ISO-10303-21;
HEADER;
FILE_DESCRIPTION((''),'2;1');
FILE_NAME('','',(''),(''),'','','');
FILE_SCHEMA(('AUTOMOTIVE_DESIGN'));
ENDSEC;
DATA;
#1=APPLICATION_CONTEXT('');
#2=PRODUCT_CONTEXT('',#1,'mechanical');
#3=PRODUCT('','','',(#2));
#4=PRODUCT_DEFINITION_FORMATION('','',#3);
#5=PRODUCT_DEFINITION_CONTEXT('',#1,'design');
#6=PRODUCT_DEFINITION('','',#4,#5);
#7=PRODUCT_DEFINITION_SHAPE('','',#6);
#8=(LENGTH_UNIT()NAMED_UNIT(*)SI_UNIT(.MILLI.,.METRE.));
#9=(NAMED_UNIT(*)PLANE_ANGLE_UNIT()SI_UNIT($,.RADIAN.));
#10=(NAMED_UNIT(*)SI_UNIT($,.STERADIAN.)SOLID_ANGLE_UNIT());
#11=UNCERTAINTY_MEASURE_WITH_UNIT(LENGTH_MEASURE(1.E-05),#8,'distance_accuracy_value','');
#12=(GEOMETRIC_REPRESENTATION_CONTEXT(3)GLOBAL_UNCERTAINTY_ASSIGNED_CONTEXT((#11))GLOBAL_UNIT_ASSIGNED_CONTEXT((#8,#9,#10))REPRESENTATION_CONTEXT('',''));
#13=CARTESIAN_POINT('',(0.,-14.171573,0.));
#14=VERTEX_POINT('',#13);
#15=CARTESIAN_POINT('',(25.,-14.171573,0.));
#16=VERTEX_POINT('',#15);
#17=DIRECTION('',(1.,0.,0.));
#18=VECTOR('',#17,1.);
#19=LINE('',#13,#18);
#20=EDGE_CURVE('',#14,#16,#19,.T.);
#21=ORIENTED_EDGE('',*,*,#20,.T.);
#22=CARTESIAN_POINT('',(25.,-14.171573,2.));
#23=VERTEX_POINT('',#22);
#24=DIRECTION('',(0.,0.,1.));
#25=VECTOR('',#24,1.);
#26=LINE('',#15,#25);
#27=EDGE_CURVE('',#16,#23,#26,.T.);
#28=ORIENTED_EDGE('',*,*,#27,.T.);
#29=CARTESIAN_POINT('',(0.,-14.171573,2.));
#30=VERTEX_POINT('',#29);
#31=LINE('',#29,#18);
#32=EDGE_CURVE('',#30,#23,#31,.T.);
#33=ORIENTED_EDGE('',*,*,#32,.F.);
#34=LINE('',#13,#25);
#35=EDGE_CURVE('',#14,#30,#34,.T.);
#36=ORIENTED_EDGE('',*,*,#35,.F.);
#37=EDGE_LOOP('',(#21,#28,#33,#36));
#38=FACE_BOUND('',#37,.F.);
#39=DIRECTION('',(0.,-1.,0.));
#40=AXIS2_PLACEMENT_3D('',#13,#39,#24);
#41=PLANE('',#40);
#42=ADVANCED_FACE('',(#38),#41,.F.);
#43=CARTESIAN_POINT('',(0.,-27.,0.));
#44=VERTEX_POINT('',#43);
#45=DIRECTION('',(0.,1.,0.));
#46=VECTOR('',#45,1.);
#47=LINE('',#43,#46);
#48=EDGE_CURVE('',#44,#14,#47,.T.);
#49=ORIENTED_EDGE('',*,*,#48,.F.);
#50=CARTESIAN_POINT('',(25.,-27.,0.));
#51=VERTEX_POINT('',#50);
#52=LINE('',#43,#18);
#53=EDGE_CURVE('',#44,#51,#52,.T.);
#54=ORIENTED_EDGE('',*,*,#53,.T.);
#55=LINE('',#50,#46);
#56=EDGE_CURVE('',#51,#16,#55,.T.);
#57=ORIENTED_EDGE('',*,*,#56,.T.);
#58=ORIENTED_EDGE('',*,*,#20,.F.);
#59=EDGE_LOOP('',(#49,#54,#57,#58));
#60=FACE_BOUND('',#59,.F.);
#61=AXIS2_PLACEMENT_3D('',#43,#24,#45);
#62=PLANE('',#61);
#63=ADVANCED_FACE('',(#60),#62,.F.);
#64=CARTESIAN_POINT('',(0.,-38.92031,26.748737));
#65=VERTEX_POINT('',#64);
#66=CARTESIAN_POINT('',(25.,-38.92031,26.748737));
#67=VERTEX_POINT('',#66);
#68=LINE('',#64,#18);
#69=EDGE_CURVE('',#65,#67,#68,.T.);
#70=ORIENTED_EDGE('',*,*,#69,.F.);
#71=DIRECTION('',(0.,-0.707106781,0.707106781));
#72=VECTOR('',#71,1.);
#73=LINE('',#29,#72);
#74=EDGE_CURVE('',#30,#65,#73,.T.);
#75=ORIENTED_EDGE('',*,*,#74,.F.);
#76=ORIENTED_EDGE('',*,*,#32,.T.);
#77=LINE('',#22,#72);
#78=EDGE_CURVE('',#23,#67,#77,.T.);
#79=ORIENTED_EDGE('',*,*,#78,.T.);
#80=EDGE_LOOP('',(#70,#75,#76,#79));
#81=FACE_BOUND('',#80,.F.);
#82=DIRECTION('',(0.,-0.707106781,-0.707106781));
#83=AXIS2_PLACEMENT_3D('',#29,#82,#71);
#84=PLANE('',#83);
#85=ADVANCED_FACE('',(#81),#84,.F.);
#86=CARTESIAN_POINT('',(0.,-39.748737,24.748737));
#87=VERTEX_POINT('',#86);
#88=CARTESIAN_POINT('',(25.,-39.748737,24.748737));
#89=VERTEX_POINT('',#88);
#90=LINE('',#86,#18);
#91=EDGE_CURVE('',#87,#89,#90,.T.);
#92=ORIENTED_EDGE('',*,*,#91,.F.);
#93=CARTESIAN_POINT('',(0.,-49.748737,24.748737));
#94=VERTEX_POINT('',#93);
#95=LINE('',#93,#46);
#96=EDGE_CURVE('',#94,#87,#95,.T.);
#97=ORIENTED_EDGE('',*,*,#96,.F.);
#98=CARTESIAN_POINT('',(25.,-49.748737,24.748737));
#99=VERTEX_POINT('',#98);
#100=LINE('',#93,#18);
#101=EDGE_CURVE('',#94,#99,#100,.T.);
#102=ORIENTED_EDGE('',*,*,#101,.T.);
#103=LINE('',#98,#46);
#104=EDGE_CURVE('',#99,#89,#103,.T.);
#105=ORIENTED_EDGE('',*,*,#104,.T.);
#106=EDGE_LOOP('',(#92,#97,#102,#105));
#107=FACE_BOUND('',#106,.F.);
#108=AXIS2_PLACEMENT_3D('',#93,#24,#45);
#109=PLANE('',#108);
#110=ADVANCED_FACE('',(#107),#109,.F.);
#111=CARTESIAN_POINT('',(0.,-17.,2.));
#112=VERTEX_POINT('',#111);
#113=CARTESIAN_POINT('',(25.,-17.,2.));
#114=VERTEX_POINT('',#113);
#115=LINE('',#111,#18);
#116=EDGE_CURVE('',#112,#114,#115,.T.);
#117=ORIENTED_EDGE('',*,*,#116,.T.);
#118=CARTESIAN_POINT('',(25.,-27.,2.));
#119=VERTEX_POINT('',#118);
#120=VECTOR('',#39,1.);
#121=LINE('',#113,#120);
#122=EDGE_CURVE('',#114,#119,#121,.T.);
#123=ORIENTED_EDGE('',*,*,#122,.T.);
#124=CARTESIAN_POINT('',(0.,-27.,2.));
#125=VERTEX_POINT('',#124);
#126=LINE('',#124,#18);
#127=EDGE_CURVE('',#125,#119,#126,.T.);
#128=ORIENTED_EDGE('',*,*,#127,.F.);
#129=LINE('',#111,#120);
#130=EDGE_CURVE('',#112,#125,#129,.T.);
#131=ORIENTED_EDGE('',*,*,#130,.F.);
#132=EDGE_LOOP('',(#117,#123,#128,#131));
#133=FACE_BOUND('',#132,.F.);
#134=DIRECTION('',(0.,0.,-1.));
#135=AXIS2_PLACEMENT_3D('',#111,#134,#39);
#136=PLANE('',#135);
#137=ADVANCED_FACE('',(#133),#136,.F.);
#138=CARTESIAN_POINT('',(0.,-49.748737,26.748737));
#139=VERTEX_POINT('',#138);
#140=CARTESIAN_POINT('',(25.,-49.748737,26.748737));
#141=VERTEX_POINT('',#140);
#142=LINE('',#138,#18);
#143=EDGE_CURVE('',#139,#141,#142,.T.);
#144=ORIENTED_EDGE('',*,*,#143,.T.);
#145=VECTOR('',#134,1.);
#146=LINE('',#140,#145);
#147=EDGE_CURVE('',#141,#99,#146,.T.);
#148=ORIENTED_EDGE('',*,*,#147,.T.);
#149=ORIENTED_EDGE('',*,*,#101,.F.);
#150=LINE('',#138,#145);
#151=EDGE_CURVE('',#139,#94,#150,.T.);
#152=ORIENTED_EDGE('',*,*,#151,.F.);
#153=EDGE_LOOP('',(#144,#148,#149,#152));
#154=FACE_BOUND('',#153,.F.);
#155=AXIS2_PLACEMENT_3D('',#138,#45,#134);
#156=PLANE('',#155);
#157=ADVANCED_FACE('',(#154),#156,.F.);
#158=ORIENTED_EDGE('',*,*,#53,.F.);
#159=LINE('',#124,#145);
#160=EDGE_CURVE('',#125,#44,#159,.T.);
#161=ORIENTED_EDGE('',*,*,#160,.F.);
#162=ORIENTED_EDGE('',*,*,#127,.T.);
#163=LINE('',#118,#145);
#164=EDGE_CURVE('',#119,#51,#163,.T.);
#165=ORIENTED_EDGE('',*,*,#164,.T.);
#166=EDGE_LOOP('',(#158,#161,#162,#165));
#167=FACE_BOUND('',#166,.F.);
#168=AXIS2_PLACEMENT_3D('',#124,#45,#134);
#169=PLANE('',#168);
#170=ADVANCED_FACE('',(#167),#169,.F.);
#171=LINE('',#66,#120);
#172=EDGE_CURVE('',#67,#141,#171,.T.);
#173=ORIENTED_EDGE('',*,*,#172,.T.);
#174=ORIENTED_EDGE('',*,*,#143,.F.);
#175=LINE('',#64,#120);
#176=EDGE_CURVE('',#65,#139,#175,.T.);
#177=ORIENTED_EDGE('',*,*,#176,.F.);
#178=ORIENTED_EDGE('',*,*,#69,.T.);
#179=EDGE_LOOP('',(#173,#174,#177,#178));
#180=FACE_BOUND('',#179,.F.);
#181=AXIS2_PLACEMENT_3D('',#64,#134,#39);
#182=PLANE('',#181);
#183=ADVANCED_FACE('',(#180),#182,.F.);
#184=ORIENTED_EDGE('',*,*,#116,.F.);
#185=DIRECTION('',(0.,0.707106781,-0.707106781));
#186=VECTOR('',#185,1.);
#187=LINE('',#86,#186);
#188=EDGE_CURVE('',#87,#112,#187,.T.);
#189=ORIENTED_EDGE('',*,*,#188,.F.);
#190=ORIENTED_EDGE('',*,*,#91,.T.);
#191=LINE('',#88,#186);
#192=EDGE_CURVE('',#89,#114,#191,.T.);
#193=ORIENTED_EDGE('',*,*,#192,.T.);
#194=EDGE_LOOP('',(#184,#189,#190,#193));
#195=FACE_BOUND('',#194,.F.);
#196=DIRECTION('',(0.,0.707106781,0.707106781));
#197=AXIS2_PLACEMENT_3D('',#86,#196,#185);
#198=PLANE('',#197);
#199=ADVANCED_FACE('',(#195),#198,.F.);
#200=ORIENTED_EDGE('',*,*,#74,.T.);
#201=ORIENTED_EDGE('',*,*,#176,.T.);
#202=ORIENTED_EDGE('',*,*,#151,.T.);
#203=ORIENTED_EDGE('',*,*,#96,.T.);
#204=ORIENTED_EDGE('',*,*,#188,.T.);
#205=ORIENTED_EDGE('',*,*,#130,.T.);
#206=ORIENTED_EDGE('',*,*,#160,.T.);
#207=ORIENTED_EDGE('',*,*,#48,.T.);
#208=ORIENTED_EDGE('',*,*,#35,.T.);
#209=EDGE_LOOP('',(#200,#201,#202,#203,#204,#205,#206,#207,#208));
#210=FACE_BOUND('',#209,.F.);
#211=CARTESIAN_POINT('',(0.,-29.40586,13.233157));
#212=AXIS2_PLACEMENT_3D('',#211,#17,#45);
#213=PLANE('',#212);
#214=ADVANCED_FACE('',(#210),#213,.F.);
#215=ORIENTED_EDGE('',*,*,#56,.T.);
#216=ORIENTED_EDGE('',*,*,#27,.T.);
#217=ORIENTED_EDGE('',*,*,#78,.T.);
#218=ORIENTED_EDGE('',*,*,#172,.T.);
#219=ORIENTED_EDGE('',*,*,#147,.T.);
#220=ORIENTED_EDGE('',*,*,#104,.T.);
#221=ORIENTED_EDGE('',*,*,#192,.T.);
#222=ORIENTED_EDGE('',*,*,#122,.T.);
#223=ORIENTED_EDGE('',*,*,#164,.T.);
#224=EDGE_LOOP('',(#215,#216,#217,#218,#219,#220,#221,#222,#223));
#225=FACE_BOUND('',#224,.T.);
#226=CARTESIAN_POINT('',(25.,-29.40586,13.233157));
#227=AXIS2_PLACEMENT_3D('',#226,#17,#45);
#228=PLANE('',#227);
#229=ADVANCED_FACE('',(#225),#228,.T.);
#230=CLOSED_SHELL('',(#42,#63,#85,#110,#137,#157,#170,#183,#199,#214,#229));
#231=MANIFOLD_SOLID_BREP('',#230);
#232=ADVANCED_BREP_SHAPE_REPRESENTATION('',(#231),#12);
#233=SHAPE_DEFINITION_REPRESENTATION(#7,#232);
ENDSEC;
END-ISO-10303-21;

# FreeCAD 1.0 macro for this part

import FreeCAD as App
import Part
import Sketcher
Q = App.Units.Quantity


def add_polygon(sketch, points):
    """Adds a closed chain of lines whose ends are joined by coincident constraints."""
    first, n = sketch.GeometryCount, len(points)
    for a, b in zip(points, points[1:] + points[:1]):
        sketch.addGeometry(Part.LineSegment(App.Vector(*a, 0), App.Vector(*b, 0)), False)
    for i in range(n):
        sketch.addConstraint(Sketcher.Constraint("Coincident", first + i, 2, first + (i + 1) % n, 1))

doc = App.newDocument("Part")
params = doc.addObject("Spreadsheet::Sheet", "Params")
for row, (alias, value) in enumerate([
    ("sketch1_width", "10 mm"),
    ("sketch1_height", "2 mm"),
    ("sketch1_length", "35 mm"),
    ("pad1_length", "25 mm"),
], start=1):
    params.set(f"A{row}", alias)
    params.set(f"B{row}", "=" + value)
    params.setAlias(f"B{row}", alias)

body = doc.addObject("PartDesign::Body", "Body")

# Sketch on YZ plane
sketch1 = doc.addObject("Sketcher::SketchObject", "Sketch")
body.addObject(sketch1)
sketch1.AttachmentSupport = (doc.YZ_Plane, [""])
sketch1.MapMode = "FlatFace"
add_polygon(sketch1, [(-49.7, 24.7), (-39.7, 24.7), (-17, 2), (-27, 2), (-27, 0), (-14.2, 0), (-14.2, 2), (-38.9, 26.7), (-49.7, 26.7)])  # lines 0-8
sketch1.addConstraint([
    Sketcher.Constraint("Horizontal", 0),
    Sketcher.Constraint("Horizontal", 2),
    Sketcher.Constraint("Vertical", 3),
    Sketcher.Constraint("Horizontal", 4),
    Sketcher.Constraint("Vertical", 5),
    Sketcher.Constraint("Horizontal", 7),
    Sketcher.Constraint("Vertical", 8),
    Sketcher.Constraint("PointOnObject", 3, 2, -1),
    Sketcher.Constraint("Parallel", 1, 6),
    Sketcher.Constraint("Horizontal", 2, 2, 5, 2),
    Sketcher.Constraint("Equal", 0, 2),
    Sketcher.Constraint("Equal", 5, 8),
    Sketcher.Constraint("DistanceX", 0, 1, 0, 2, 10.0),
    Sketcher.Constraint("DistanceY", 3, 2, 3, 1, 2.0),
    Sketcher.Constraint("Angle", 1, Q("-45 deg")),
    Sketcher.Constraint("Distance", 6, 35.0),
    Sketcher.Constraint("DistanceX", 1, 2, -1, 1, 17.0),
    Sketcher.Constraint("DistanceX", 4, 1, 4, 2, 12.828427),
])
sketch1.setExpression("Constraints[21]", "Params.sketch1_width")
sketch1.setExpression("Constraints[22]", "Params.sketch1_height")
sketch1.setExpression("Constraints[24]", "Params.sketch1_length")
pad1 = doc.addObject("PartDesign::Pad", "Pad")
body.addObject(pad1)
pad1.Profile = sketch1
pad1.setExpression("Length", "Params.pad1_length")

doc.recompute()
